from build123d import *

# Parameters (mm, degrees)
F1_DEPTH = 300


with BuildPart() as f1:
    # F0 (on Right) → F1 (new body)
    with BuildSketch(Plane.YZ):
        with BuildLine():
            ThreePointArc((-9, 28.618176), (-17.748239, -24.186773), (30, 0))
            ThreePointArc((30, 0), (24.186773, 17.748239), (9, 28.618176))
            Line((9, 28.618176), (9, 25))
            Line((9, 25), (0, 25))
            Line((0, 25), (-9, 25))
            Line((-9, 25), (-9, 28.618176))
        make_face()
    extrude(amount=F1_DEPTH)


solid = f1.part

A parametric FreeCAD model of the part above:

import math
import FreeCAD as App
import Part
import Sketcher

V = App.Vector
Q = App.Units.Quantity

doc = App.newDocument("Part")
body = doc.addObject("PartDesign::Body", "Body")

# Sketch on YZ plane
sketch1 = body.newObject("Sketcher::SketchObject", "Sketch")
sketch1.AttachmentSupport = (doc.getObject("YZ_Plane"), [""])
sketch1.MapMode = "FlatFace"
sketch1.addGeometry([
    Part.ArcOfCircle(Part.Circle(V(0, 0, 0), V(0, 0, 1), 30), math.radians(107.457604), math.radians(360)),  # 0
    Part.ArcOfCircle(Part.Circle(V(-0.000002, -0.000001, 0), V(0, 0, 1), 30.000002), math.radians(0.000002), math.radians(72.542395)),  # 1
    Part.LineSegment(V(9, 28.618176, 0), V(9, 25, 0)),  # 2
    Part.LineSegment(V(9, 25, 0), V(-9, 25, 0)),  # 3
    Part.LineSegment(V(-9, 25, 0), V(-9, 28.618176, 0)),  # 4
], False)
sketch1.addConstraint([
    Sketcher.Constraint("Tangent", 0, 2, 1, 1),
    Sketcher.Constraint("Coincident", 1, 2, 2, 1),
    Sketcher.Constraint("Coincident", 2, 2, 3, 1),
    Sketcher.Constraint("Coincident", 3, 2, 4, 1),
    Sketcher.Constraint("Coincident", 4, 2, 0, 1),
    Sketcher.Constraint("Vertical", 2),
    Sketcher.Constraint("Horizontal", 3),
    Sketcher.Constraint("Vertical", 4),
    Sketcher.Constraint("Coincident", 0, 3, -1, 1),
    Sketcher.Constraint("Equal", 0, 1),
    Sketcher.Constraint("PointOnObject", 0, 2, -1),
    Sketcher.Constraint("Horizontal", 1, 2, 4, 2),
    Sketcher.Constraint("Radius", 0, Q("30 mm")),
    Sketcher.Constraint("DistanceX", 3, 2, 3, 1, Q("18 mm")),
    Sketcher.Constraint("DistanceY", -1, 1, 2, 2, Q("25 mm")),
])
pad1 = body.newObject("PartDesign::Pad", "Pad")
pad1.Profile = sketch1
pad1.Length = 300

doc.recompute()
